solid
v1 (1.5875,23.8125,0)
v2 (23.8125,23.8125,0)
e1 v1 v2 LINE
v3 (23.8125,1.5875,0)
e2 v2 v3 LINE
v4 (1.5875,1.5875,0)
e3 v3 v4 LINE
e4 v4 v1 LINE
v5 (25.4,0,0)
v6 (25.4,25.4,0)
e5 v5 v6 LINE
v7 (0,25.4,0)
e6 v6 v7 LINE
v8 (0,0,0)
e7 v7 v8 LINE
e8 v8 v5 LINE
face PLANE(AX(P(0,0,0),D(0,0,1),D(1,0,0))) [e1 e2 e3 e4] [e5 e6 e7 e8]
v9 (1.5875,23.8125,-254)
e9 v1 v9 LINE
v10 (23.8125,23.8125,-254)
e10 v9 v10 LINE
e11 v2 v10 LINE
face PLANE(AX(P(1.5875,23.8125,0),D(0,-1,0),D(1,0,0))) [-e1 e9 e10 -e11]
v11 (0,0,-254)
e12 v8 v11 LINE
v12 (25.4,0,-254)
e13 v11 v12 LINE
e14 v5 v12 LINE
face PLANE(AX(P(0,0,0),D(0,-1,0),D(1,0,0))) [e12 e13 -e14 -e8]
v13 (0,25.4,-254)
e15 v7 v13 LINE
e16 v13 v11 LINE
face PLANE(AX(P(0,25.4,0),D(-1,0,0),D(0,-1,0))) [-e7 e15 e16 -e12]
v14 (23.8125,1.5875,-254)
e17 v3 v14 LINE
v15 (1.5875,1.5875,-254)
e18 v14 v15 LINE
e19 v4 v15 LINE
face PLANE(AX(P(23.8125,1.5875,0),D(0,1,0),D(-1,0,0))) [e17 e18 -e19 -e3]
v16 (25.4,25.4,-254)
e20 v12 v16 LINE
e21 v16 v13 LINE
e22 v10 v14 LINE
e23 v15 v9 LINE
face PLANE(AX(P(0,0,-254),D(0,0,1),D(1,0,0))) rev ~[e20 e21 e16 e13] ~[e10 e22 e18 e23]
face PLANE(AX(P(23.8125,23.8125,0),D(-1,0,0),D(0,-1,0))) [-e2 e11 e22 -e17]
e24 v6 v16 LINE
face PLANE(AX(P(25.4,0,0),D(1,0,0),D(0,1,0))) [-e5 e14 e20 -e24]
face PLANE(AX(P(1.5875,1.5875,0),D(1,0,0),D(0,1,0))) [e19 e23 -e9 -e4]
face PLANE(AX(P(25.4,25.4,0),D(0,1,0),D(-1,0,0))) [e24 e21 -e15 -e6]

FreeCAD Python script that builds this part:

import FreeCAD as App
import Part
import Sketcher

V = App.Vector
Q = App.Units.Quantity

doc = App.newDocument("Part")
body = doc.addObject("PartDesign::Body", "Body")

sketch1 = body.newObject("Sketcher::SketchObject", "Sketch")
sketch1.AttachmentSupport = (doc.getObject("XY_Plane"), [""])
sketch1.MapMode = "FlatFace"
sketch1.addGeometry([
    Part.LineSegment(V(0, 25.4, 0), V(0, 0, 0)),
    Part.LineSegment(V(0, 0, 0), V(25.4, 0, 0)),
    Part.LineSegment(V(25.4, 0, 0), V(25.4, 25.4, 0)),
    Part.LineSegment(V(25.4, 25.4, 0), V(0, 25.4, 0)),
    Part.LineSegment(V(1.5875, 1.5875, 0), V(1.5875, 23.8125, 0)),
    Part.LineSegment(V(1.5875, 23.8125, 0), V(23.8125, 23.8125, 0)),
    Part.LineSegment(V(23.8125, 23.8125, 0), V(23.8125, 1.5875, 0)),
    Part.LineSegment(V(23.8125, 1.5875, 0), V(1.5875, 1.5875, 0)),
], False)
sketch1.addConstraint([
    Sketcher.Constraint("Coincident", 0, 2, 1, 1),
    Sketcher.Constraint("Coincident", 1, 2, 2, 1),
    Sketcher.Constraint("Coincident", 2, 2, 3, 1),
    Sketcher.Constraint("Coincident", 3, 2, 0, 1),
    Sketcher.Constraint("Coincident", 4, 2, 5, 1),
    Sketcher.Constraint("Coincident", 5, 2, 6, 1),
    Sketcher.Constraint("Coincident", 6, 2, 7, 1),
    Sketcher.Constraint("Coincident", 7, 2, 4, 1),
    Sketcher.Constraint("Vertical", 0),
    Sketcher.Constraint("Horizontal", 1),
    Sketcher.Constraint("Vertical", 2),
    Sketcher.Constraint("Horizontal", 3),
    Sketcher.Constraint("Vertical", 4),
    Sketcher.Constraint("Horizontal", 5),
    Sketcher.Constraint("Vertical", 6),
    Sketcher.Constraint("Horizontal", 7),
    Sketcher.Constraint("Coincident", 0, 2, -1, 1),
    Sketcher.Constraint("Equal", 3, 0),
    Sketcher.Constraint("Equal", 7, 4),
    Sketcher.Constraint("DistanceX", 1, 1, 1, 2, Q("1 in")),
    Sketcher.Constraint("DistanceX", -1, 1, 4, 2, Q("0.0625 in")),
    Sketcher.Constraint("DistanceY", -1, 1, 6, 2, Q("0.0625 in")),
    Sketcher.Constraint("DistanceY", 4, 2, 3, 2, Q("0.0625 in")),
])
pad1 = body.newObject("PartDesign::Pad", "Pad")
pad1.Profile = sketch1
pad1.Length = Q("10 in")
pad1.Reversed = True

doc.recompute()
